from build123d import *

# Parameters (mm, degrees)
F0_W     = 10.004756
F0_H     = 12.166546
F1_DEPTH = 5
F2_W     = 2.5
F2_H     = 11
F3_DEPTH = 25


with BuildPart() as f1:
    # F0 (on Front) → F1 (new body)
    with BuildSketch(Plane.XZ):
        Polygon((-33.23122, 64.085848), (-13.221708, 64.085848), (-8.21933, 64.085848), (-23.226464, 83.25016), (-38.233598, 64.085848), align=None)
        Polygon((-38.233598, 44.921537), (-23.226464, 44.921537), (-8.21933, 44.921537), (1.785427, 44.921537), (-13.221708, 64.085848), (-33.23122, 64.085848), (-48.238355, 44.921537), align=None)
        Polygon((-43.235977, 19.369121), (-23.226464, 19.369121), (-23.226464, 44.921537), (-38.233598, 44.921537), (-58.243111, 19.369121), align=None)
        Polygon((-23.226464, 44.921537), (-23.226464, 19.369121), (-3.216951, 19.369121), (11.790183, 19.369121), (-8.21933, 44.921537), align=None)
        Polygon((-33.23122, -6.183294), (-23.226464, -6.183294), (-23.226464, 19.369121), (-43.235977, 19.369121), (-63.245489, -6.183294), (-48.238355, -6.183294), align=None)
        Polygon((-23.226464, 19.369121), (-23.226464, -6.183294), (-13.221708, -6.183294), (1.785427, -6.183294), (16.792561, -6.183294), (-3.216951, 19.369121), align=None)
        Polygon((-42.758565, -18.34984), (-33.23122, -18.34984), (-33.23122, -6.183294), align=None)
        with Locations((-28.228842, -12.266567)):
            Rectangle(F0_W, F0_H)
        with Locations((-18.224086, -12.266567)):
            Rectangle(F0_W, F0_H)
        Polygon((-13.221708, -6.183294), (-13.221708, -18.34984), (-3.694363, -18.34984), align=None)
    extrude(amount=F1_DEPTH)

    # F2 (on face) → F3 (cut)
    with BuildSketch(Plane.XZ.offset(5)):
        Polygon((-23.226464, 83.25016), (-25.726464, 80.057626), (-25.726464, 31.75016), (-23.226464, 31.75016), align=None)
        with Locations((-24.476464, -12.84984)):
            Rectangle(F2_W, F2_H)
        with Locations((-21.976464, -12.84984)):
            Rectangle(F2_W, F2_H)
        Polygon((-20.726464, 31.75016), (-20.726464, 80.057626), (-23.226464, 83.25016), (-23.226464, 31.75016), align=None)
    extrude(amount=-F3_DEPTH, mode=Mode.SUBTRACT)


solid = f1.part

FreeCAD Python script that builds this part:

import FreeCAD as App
import Part
import Sketcher

V = App.Vector
Q = App.Units.Quantity

doc = App.newDocument("Part")
body = doc.addObject("PartDesign::Body", "Body")

# Sketch on XZ plane
sketch1 = body.newObject("Sketcher::SketchObject", "Sketch")
sketch1.AttachmentSupport = (doc.getObject("XZ_Plane"), [""])
sketch1.MapMode = "FlatFace"
sketch1.addGeometry(Part.LineSegment(V(-8, 64, 0), V(-23, 83, 0)), False)
sketch1.addGeometry(Part.LineSegment(V(-23, 83, 0), V(-38, 64, 0)), False)
sketch1.addGeometry(Part.LineSegment(V(-38, 64, 0), V(-33, 64, 0)), False)
sketch1.addGeometry(Part.LineSegment(V(-33, 64, 0), V(-48, 45, 0)), False)
sketch1.addGeometry(Part.LineSegment(V(-48, 45, 0), V(-38, 45, 0)), False)
sketch1.addGeometry(Part.LineSegment(V(-38, 45, 0), V(-58, 19, 0)), False)
sketch1.addGeometry(Part.LineSegment(V(-58, 19, 0), V(-43, 19, 0)), False)
sketch1.addGeometry(Part.LineSegment(V(-43, 19, 0), V(-63, -6, 0)), False)
sketch1.addGeometry(Part.LineSegment(V(-63, -6, 0), V(-33, -6, 0)), False)
sketch1.addGeometry(Part.LineSegment(V(-33, -6, 0), V(-43, -18, 0)), False)
sketch1.addGeometry(Part.LineSegment(V(-43, -18, 0), V(-4, -18, 0)), False)
sketch1.addGeometry(Part.LineSegment(V(-4, -18, 0), V(-13, -6, 0)), False)
sketch1.addGeometry(Part.LineSegment(V(-13, -6, 0), V(17, -6, 0)), False)
sketch1.addGeometry(Part.LineSegment(V(17, -6, 0), V(-3, 19, 0)), False)
sketch1.addGeometry(Part.LineSegment(V(-3, 19, 0), V(12, 19, 0)), False)
sketch1.addGeometry(Part.LineSegment(V(12, 19, 0), V(-8, 45, 0)), False)
sketch1.addGeometry(Part.LineSegment(V(-8, 45, 0), V(2, 45, 0)), False)
sketch1.addGeometry(Part.LineSegment(V(2, 45, 0), V(-13, 64, 0)), False)
sketch1.addGeometry(Part.LineSegment(V(-13, 64, 0), V(-8, 64, 0)), False)
sketch1.addConstraint(Sketcher.Constraint("Coincident", 0, 2, 1, 1))
sketch1.addConstraint(Sketcher.Constraint("Coincident", 1, 2, 2, 1))
sketch1.addConstraint(Sketcher.Constraint("Coincident", 2, 2, 3, 1))
sketch1.addConstraint(Sketcher.Constraint("Coincident", 3, 2, 4, 1))
sketch1.addConstraint(Sketcher.Constraint("Coincident", 4, 2, 5, 1))
sketch1.addConstraint(Sketcher.Constraint("Coincident", 5, 2, 6, 1))
sketch1.addConstraint(Sketcher.Constraint("Coincident", 6, 2, 7, 1))
sketch1.addConstraint(Sketcher.Constraint("Coincident", 7, 2, 8, 1))
sketch1.addConstraint(Sketcher.Constraint("Coincident", 8, 2, 9, 1))
sketch1.addConstraint(Sketcher.Constraint("Coincident", 9, 2, 10, 1))
sketch1.addConstraint(Sketcher.Constraint("Coincident", 10, 2, 11, 1))
sketch1.addConstraint(Sketcher.Constraint("Coincident", 11, 2, 12, 1))
sketch1.addConstraint(Sketcher.Constraint("Coincident", 12, 2, 13, 1))
sketch1.addConstraint(Sketcher.Constraint("Coincident", 13, 2, 14, 1))
sketch1.addConstraint(Sketcher.Constraint("Coincident", 14, 2, 15, 1))
sketch1.addConstraint(Sketcher.Constraint("Coincident", 15, 2, 16, 1))
sketch1.addConstraint(Sketcher.Constraint("Coincident", 16, 2, 17, 1))
sketch1.addConstraint(Sketcher.Constraint("Coincident", 17, 2, 18, 1))
sketch1.addConstraint(Sketcher.Constraint("Coincident", 18, 2, 0, 1))
sketch1.addConstraint(Sketcher.Constraint("Horizontal", 2))
sketch1.addConstraint(Sketcher.Constraint("Horizontal", 4))
sketch1.addConstraint(Sketcher.Constraint("Horizontal", 6))
sketch1.addConstraint(Sketcher.Constraint("Horizontal", 8))
sketch1.addConstraint(Sketcher.Constraint("Horizontal", 10))
sketch1.addConstraint(Sketcher.Constraint("Horizontal", 12))
sketch1.addConstraint(Sketcher.Constraint("Horizontal", 14))
sketch1.addConstraint(Sketcher.Constraint("Horizontal", 16))
sketch1.addConstraint(Sketcher.Constraint("Horizontal", 18))
sketch1.addConstraint(Sketcher.Constraint("Parallel", 1, 3))
sketch1.addConstraint(Sketcher.Constraint("Parallel", 3, 5))
sketch1.addConstraint(Sketcher.Constraint("Parallel", 5, 7))
sketch1.addConstraint(Sketcher.Constraint("Parallel", 7, 9))
sketch1.addConstraint(Sketcher.Constraint("Parallel", 0, 11))
sketch1.addConstraint(Sketcher.Constraint("Parallel", 11, 13))
sketch1.addConstraint(Sketcher.Constraint("Parallel", 13, 15))
sketch1.addConstraint(Sketcher.Constraint("Parallel", 15, 17))
sketch1.addConstraint(Sketcher.Constraint("Horizontal", 8, 2, 11, 2))
sketch1.addConstraint(Sketcher.Constraint("Horizontal", 6, 2, 13, 2))
sketch1.addConstraint(Sketcher.Constraint("Horizontal", 4, 2, 15, 2))
sketch1.addConstraint(Sketcher.Constraint("Horizontal", 2, 2, 17, 2))
sketch1.addConstraint(Sketcher.Constraint("Vertical", 1, 2, 4, 2))
sketch1.addConstraint(Sketcher.Constraint("Vertical", 2, 2, 8, 2))
sketch1.addConstraint(Sketcher.Constraint("Vertical", 11, 2, 17, 2))
sketch1.addConstraint(Sketcher.Constraint("Vertical", 15, 2, 18, 2))
sketch1.addConstraint(Sketcher.Constraint("Equal", 8, 12))
sketch1.addConstraint(Sketcher.Constraint("Equal", 6, 14))
sketch1.addConstraint(Sketcher.Constraint("Equal", 4, 16))
sketch1.addConstraint(Sketcher.Constraint("Equal", 1, 3))
sketch1.addConstraint(Sketcher.Constraint("Equal", 5, 7))
sketch1.addConstraint(Sketcher.Constraint("DistanceX", 10, 1, 10, 2, Q("39.064202 mm")))
sketch1.addConstraint(Sketcher.Constraint("DistanceX", 2, 1, 2, 2, Q("5.002378 mm")))
sketch1.addConstraint(Sketcher.Constraint("DistanceX", 8, 1, 8, 2, Q("30.014269 mm")))
sketch1.addConstraint(Sketcher.Constraint("DistanceX", 4, 1, 4, 2, Q("10.004757 mm")))
sketch1.addConstraint(Sketcher.Constraint("DistanceX", 6, 1, 6, 2, Q("15.007134 mm")))
sketch1.addConstraint(Sketcher.Constraint("DistanceY", -1, 1, 0, 2, Q("83.25016 mm")))
sketch1.addConstraint(Sketcher.Constraint("DistanceY", -1, 1, 1, 2, Q("64.085848 mm")))
sketch1.addConstraint(Sketcher.Constraint("DistanceX", 2, 2, -1, 1, Q("33.23122 mm")))
pad1 = body.newObject("PartDesign::Pad", "Pad")
pad1.Profile = sketch1
pad1.Length = 5

# Sketch on XZ plane
sketch2 = body.newObject("Sketcher::SketchObject", "Sketch001")
sketch2.AttachmentSupport = (doc.getObject("XZ_Plane"), [""])
sketch2.MapMode = "FlatFace"
sketch2.AttachmentOffset = App.Placement(V(0, 0, 5), App.Rotation())
sketch2.addGeometry(Part.LineSegment(V(-23.2, 83.3, 0), V(-25.7, 80.1, 0)), False)
sketch2.addGeometry(Part.LineSegment(V(-25.7, 80.1, 0), V(-25.7, 31.8, 0)), False)
sketch2.addGeometry(Part.LineSegment(V(-25.7, 31.8, 0), V(-20.7, 31.8, 0)), False)
sketch2.addGeometry(Part.LineSegment(V(-20.7, 31.8, 0), V(-20.7, 80.1, 0)), False)
sketch2.addGeometry(Part.LineSegment(V(-20.7, 80.1, 0), V(-23.2, 83.3, 0)), False)
sketch2.addGeometry(Part.LineSegment(V(-25.7, -7.3, 0), V(-25.7, -18.3, 0)), False)
sketch2.addGeometry(Part.LineSegment(V(-25.7, -18.3, 0), V(-20.7, -18.3, 0)), False)
sketch2.addGeometry(Part.LineSegment(V(-20.7, -18.3, 0), V(-20.7, -7.3, 0)), False)
sketch2.addGeometry(Part.LineSegment(V(-20.7, -7.3, 0), V(-25.7, -7.3, 0)), False)
sketch2.addConstraint(Sketcher.Constraint("Coincident", 0, 2, 1, 1))
sketch2.addConstraint(Sketcher.Constraint("Coincident", 1, 2, 2, 1))
sketch2.addConstraint(Sketcher.Constraint("Coincident", 2, 2, 3, 1))
sketch2.addConstraint(Sketcher.Constraint("Coincident", 3, 2, 4, 1))
sketch2.addConstraint(Sketcher.Constraint("Coincident", 4, 2, 0, 1))
sketch2.addConstraint(Sketcher.Constraint("Coincident", 5, 2, 6, 1))
sketch2.addConstraint(Sketcher.Constraint("Coincident", 6, 2, 7, 1))
sketch2.addConstraint(Sketcher.Constraint("Coincident", 7, 2, 8, 1))
sketch2.addConstraint(Sketcher.Constraint("Coincident", 8, 2, 5, 1))
sketch2.addConstraint(Sketcher.Constraint("Vertical", 1))
sketch2.addConstraint(Sketcher.Constraint("Horizontal", 2))
sketch2.addConstraint(Sketcher.Constraint("Vertical", 3))
sketch2.addConstraint(Sketcher.Constraint("Vertical", 5))
sketch2.addConstraint(Sketcher.Constraint("Horizontal", 6))
sketch2.addConstraint(Sketcher.Constraint("Vertical", 7))
sketch2.addConstraint(Sketcher.Constraint("Horizontal", 8))
sketch2.addConstraint(Sketcher.Constraint("Horizontal", 0, 2, 3, 2))
sketch2.addConstraint(Sketcher.Constraint("Vertical", 1, 2, 5, 2))
sketch2.addConstraint(Sketcher.Constraint("Vertical", 3, 2, 6, 2))
sketch2.addConstraint(Sketcher.Constraint("Equal", 0, 4))
sketch2.addConstraint(Sketcher.Constraint("DistanceX", 2, 1, 2, 2, Q("5 mm")))
sketch2.addConstraint(Sketcher.Constraint("DistanceY", 5, 2, 5, 1, Q("11 mm")))
sketch2.addConstraint(Sketcher.Constraint("DistanceY", 1, 2, 4, 2, Q("51.5 mm")))
sketch2.addConstraint(Sketcher.Constraint("DistanceY", 5, 2, 1, 2, Q("50.1 mm")))
sketch2.addConstraint(Sketcher.Constraint("DistanceY", 1, 2, 1, 1, Q("48.307466 mm")))
sketch2.addConstraint(Sketcher.Constraint("DistanceY", -1, 1, 1, 2, Q("31.75016 mm")))
sketch2.addConstraint(Sketcher.Constraint("DistanceX", 0, 2, -1, 1, Q("25.726464 mm")))
pocket1 = body.newObject("PartDesign::Pocket", "Pocket")
pocket1.Profile = sketch2
pocket1.Length = 25

doc.recompute()
